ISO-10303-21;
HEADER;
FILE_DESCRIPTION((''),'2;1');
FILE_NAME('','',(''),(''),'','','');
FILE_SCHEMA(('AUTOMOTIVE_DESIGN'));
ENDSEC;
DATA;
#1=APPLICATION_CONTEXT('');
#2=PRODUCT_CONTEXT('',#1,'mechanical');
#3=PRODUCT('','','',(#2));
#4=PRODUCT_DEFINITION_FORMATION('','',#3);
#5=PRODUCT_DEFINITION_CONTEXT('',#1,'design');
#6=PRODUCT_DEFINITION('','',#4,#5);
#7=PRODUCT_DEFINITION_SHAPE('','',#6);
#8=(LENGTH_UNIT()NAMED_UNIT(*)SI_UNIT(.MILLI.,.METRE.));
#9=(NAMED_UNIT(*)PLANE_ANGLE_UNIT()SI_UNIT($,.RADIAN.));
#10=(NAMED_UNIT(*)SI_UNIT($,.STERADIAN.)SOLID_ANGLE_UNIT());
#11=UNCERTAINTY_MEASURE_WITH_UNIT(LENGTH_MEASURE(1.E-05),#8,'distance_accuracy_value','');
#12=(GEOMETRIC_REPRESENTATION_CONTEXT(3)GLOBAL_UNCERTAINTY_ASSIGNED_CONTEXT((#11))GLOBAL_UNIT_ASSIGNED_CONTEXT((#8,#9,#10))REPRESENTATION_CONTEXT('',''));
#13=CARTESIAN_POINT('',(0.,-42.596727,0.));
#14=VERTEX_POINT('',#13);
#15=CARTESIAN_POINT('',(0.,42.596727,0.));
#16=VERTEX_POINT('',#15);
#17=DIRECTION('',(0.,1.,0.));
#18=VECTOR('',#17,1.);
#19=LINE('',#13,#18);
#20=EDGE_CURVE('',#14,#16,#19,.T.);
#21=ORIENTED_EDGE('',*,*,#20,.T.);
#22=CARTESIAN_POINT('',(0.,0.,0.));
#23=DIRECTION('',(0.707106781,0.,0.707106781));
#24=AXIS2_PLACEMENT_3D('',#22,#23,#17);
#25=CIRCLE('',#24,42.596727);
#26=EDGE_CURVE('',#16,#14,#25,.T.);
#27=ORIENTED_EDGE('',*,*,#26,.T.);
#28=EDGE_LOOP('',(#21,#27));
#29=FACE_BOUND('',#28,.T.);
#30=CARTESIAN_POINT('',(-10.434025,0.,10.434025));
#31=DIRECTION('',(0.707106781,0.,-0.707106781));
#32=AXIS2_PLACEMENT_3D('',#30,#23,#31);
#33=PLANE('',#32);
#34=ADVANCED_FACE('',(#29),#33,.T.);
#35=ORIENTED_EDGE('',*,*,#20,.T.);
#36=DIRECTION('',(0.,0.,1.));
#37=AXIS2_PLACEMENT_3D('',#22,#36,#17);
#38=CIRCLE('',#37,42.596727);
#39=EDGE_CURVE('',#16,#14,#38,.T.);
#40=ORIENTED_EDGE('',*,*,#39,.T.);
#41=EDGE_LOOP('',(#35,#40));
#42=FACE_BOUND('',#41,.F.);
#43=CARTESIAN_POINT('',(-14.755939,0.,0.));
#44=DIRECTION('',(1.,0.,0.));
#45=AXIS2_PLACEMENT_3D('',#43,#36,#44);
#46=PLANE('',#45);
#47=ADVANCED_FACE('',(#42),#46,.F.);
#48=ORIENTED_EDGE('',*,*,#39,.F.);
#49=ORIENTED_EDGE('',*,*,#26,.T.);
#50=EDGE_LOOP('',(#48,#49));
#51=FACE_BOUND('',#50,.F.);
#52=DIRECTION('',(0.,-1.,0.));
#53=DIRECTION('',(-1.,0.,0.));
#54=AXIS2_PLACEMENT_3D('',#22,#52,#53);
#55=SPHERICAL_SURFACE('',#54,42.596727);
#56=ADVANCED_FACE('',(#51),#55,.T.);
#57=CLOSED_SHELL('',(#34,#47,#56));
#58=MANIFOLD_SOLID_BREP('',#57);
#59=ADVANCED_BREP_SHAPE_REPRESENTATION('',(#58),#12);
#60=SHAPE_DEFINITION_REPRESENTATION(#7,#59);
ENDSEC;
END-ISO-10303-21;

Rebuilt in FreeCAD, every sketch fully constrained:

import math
import FreeCAD as App
import Part
import Sketcher
from FreeCAD import Vector
Q = App.Units.Quantity

doc = App.newDocument("Part")
params = doc.addObject("Spreadsheet::Sheet", "Params")
for row, (alias, value) in enumerate([
    ("revolution_angle", "45 deg"),
], start=1):
    params.set(f"A{row}", alias)
    params.set(f"B{row}", "=" + value)
    params.setAlias(f"B{row}", alias)

body = doc.addObject("PartDesign::Body", "Body")

# Sketch on XY plane
sketch1 = body.newObject("Sketcher::SketchObject", "Sketch")
sketch1.AttachmentSupport = (doc.getObject("XY_Plane"), [""])
sketch1.MapMode = "FlatFace"
sketch1.addGeometry([
    Part.LineSegment(Vector(0, -43, 0), Vector(0, 43, 0)),
    Part.ArcOfCircle(Part.Circle(Vector(0, 0, 0), Vector(0, 0, 1), 43), math.radians(90), math.radians(270)),
], False)
sketch1.addConstraint([
    Sketcher.Constraint("Coincident", 0, 1, 1, 2),
    Sketcher.Constraint("Coincident", 1, 1, 0, 2),
    Sketcher.Constraint("Vertical", 0),
    Sketcher.Constraint("Coincident", 1, 3, -1, 1),
    Sketcher.Constraint("PointOnObject", 0, 1, -2),
    Sketcher.Constraint("Radius", 1, Q("42.596727 mm")),
])
revolution = body.newObject("PartDesign::Revolution", "Revolution")
revolution.Profile = sketch1
revolution.ReferenceAxis = (sketch1, ["V_Axis"])
revolution.setExpression("Angle", "Params.revolution_angle")

doc.recompute()
